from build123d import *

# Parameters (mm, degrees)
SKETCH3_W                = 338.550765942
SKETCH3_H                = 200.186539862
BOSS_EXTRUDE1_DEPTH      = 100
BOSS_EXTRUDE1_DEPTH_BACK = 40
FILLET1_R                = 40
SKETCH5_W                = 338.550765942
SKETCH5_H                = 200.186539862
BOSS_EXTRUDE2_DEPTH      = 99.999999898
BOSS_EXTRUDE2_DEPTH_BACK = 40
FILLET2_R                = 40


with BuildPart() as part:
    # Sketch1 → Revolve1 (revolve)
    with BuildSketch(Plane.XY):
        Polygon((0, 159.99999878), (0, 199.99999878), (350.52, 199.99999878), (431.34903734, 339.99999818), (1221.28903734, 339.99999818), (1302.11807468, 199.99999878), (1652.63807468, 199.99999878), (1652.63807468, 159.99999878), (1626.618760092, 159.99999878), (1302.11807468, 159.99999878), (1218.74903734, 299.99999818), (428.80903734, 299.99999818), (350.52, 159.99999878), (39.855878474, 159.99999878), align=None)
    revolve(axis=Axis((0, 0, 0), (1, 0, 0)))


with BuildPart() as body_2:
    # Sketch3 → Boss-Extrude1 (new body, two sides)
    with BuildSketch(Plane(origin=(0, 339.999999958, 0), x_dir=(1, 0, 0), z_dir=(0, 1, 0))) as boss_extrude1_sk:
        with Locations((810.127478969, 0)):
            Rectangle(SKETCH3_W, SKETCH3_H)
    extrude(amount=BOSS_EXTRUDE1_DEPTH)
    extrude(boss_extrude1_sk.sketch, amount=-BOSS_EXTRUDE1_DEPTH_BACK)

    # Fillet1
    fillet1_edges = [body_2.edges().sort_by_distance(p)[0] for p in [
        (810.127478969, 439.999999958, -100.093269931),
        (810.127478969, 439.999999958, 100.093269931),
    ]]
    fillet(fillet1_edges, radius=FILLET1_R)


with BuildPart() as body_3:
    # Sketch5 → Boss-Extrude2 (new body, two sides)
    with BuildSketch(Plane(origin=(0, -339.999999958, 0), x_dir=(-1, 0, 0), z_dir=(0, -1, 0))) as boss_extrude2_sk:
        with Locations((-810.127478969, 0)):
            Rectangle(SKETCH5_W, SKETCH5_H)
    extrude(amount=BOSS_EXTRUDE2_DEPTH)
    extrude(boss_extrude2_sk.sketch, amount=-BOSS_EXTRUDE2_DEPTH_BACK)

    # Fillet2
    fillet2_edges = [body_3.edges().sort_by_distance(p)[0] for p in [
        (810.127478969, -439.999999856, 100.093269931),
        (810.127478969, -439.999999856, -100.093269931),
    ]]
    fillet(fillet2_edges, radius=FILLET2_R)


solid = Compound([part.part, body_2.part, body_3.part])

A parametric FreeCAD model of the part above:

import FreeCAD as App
import Part
import Sketcher
from FreeCAD import Vector
Q = App.Units.Quantity


def edges_at(feature, points):
    """Names of the edges that pass closest to the given points."""
    edges = feature.Shape.Edges
    near = lambda p: min(range(len(edges)), key=lambda i: edges[i].distToShape(Part.Vertex(*p))[0])
    return sorted({f"Edge{near(p) + 1}" for p in points})

doc = App.newDocument("Part")
body = doc.addObject("PartDesign::Body", "Body")

# Sketch on XY plane
sketch1 = body.newObject("Sketcher::SketchObject", "Sketch")
sketch1.AttachmentSupport = (doc.getObject("XY_Plane"), [""])
sketch1.MapMode = "FlatFace"
sketch1.addGeometry([
    Part.LineSegment(Vector(0, 199.999999, 0), Vector(0, 159.999999, 0)),  # 0
    Part.LineSegment(Vector(0, 159.999999, 0), Vector(350.52, 159.999999, 0)),  # 1
    Part.LineSegment(Vector(350.52, 159.999999, 0), Vector(428.809037, 299.999998, 0)),  # 2
    Part.LineSegment(Vector(428.809037, 299.999998, 0), Vector(1218.749037, 299.999998, 0)),  # 3
    Part.LineSegment(Vector(1218.749037, 299.999998, 0), Vector(1302.118075, 159.999999, 0)),  # 4
    Part.LineSegment(Vector(1302.118075, 159.999999, 0), Vector(1652.638075, 159.999999, 0)),  # 5
    Part.LineSegment(Vector(1652.638075, 159.999999, 0), Vector(1652.638075, 199.999999, 0)),  # 6
    Part.LineSegment(Vector(1652.638075, 199.999999, 0), Vector(1302.118075, 199.999999, 0)),  # 7
    Part.LineSegment(Vector(1302.118075, 199.999999, 0), Vector(1221.289037, 339.999998, 0)),  # 8
    Part.LineSegment(Vector(1221.289037, 339.999998, 0), Vector(431.349037, 339.999998, 0)),  # 9
    Part.LineSegment(Vector(431.349037, 339.999998, 0), Vector(350.52, 199.999999, 0)),  # 10
    Part.LineSegment(Vector(350.52, 199.999999, 0), Vector(0, 199.999999, 0)),  # 11
], False)
sketch1.addConstraint([
    Sketcher.Constraint("Coincident", 0, 2, 1, 1),
    Sketcher.Constraint("Coincident", 1, 2, 2, 1),
    Sketcher.Constraint("Coincident", 2, 2, 3, 1),
    Sketcher.Constraint("Coincident", 3, 2, 4, 1),
    Sketcher.Constraint("Coincident", 4, 2, 5, 1),
    Sketcher.Constraint("Coincident", 5, 2, 6, 1),
    Sketcher.Constraint("Coincident", 6, 2, 7, 1),
    Sketcher.Constraint("Coincident", 7, 2, 8, 1),
    Sketcher.Constraint("Coincident", 8, 2, 9, 1),
    Sketcher.Constraint("Coincident", 9, 2, 10, 1),
    Sketcher.Constraint("Coincident", 10, 2, 11, 1),
    Sketcher.Constraint("Coincident", 11, 2, 0, 1),
    Sketcher.Constraint("Vertical", 0),
    Sketcher.Constraint("Horizontal", 1),
    Sketcher.Constraint("Horizontal", 3),
    Sketcher.Constraint("Horizontal", 5),
    Sketcher.Constraint("Vertical", 6),
    Sketcher.Constraint("Horizontal", 7),
    Sketcher.Constraint("Horizontal", 9),
    Sketcher.Constraint("Horizontal", 11),
    Sketcher.Constraint("PointOnObject", 0, 2, -2),
    Sketcher.Constraint("Horizontal", 1, 2, 4, 2),
    Sketcher.Constraint("Horizontal", 7, 2, 10, 2),
    Sketcher.Constraint("Vertical", 4, 2, 7, 2),
    Sketcher.Constraint("Vertical", 1, 2, 10, 2),
    Sketcher.Constraint("Equal", 1, 5),
    Sketcher.Constraint("Equal", 3, 9),
    Sketcher.Constraint("Equal", 8, 10),
    Sketcher.Constraint("DistanceY", 0, 2, 0, 1, Q("40 mm")),
    Sketcher.Constraint("Angle", 8, Q("120 deg")),
    Sketcher.Constraint("DistanceY", -1, 1, 0, 2, Q("159.999999 mm")),
    Sketcher.Constraint("DistanceY", -1, 1, 2, 2, Q("299.999998 mm")),
    Sketcher.Constraint("DistanceY", -1, 1, 8, 2, Q("339.999998 mm")),
    Sketcher.Constraint("DistanceX", 1, 1, 1, 2, Q("350.52 mm")),
    Sketcher.Constraint("DistanceX", 3, 1, 3, 2, Q("789.94 mm")),
    Sketcher.Constraint("DistanceX", 9, 2, 3, 2, Q("787.4 mm")),
])
revolution = body.newObject("PartDesign::Revolution", "Revolution")
revolution.Profile = sketch1
revolution.ReferenceAxis = (sketch1, ["H_Axis"])
revolution.Angle = 360
body2 = doc.addObject("PartDesign::Body", "Body001")

# Sketch on XZ plane
sketch2 = body2.newObject("Sketcher::SketchObject", "Sketch001")
sketch2.AttachmentSupport = (doc.getObject("XZ_Plane001"), [""])
sketch2.MapMode = "FlatFace"
sketch2.AttachmentOffset = App.Placement(Vector(0, 0, -340), App.Rotation())
sketch2.addGeometry([
    Part.LineSegment(Vector(640.852096, -100.09327, 0), Vector(640.852096, 100.09327, 0)),
    Part.LineSegment(Vector(640.852096, 100.09327, 0), Vector(979.402862, 100.09327, 0)),
    Part.LineSegment(Vector(979.402862, 100.09327, 0), Vector(979.402862, -100.09327, 0)),
    Part.LineSegment(Vector(979.402862, -100.09327, 0), Vector(640.852096, -100.09327, 0)),
], False)
sketch2.addConstraint([
    Sketcher.Constraint("Coincident", 0, 2, 1, 1),
    Sketcher.Constraint("Coincident", 1, 2, 2, 1),
    Sketcher.Constraint("Coincident", 2, 2, 3, 1),
    Sketcher.Constraint("Coincident", 3, 2, 0, 1),
    Sketcher.Constraint("Vertical", 0),
    Sketcher.Constraint("Horizontal", 1),
    Sketcher.Constraint("Vertical", 2),
    Sketcher.Constraint("Horizontal", 3),
    Sketcher.Constraint("DistanceY", 0, 1, 0, 2, Q("200.18654 mm")),
    Sketcher.Constraint("DistanceX", 1, 1, 1, 2, Q("338.550766 mm")),
    Sketcher.Constraint("DistanceY", -1, 1, 0, 2, Q("100.09327 mm")),
    Sketcher.Constraint("DistanceX", -1, 1, 1, 2, Q("979.402862 mm")),
])
pad1 = body2.newObject("PartDesign::Pad", "Pad")
pad1.Profile = sketch2
pad1.Type = "TwoLengths"
pad1.Length = 100
pad1.Length2 = 40
pad1.Reversed = True
doc.recompute()

fillet = body2.newObject("PartDesign::Fillet", "Fillet")
fillet.Base = (pad1, edges_at(pad1, [(810.127, 440, -100.093), (810.127, 440, 100.093)]))
fillet.Radius = 40
body3 = doc.addObject("PartDesign::Body", "Body002")

# Sketch on XZ plane
sketch3 = body3.newObject("Sketcher::SketchObject", "Sketch002")
sketch3.AttachmentSupport = (doc.getObject("XZ_Plane002"), [""])
sketch3.MapMode = "FlatFace"
sketch3.AttachmentOffset = App.Placement(Vector(0, 0, 340), App.Rotation())
sketch3.addGeometry([
    Part.LineSegment(Vector(979.402862, -100.09327, 0), Vector(979.402862, 100.09327, 0)),
    Part.LineSegment(Vector(979.402862, 100.09327, 0), Vector(640.852096, 100.09327, 0)),
    Part.LineSegment(Vector(640.852096, 100.09327, 0), Vector(640.852096, -100.09327, 0)),
    Part.LineSegment(Vector(640.852096, -100.09327, 0), Vector(979.402862, -100.09327, 0)),
], False)
sketch3.addConstraint([
    Sketcher.Constraint("Coincident", 0, 2, 1, 1),
    Sketcher.Constraint("Coincident", 1, 2, 2, 1),
    Sketcher.Constraint("Coincident", 2, 2, 3, 1),
    Sketcher.Constraint("Coincident", 3, 2, 0, 1),
    Sketcher.Constraint("Vertical", 0),
    Sketcher.Constraint("Horizontal", 1),
    Sketcher.Constraint("Vertical", 2),
    Sketcher.Constraint("Horizontal", 3),
    Sketcher.Constraint("DistanceY", 0, 1, 0, 2, Q("200.18654 mm")),
    Sketcher.Constraint("DistanceX", 1, 2, 1, 1, Q("338.550766 mm")),
    Sketcher.Constraint("DistanceX", -1, 1, 0, 2, Q("979.402862 mm")),
    Sketcher.Constraint("DistanceY", -1, 1, 0, 2, Q("100.09327 mm")),
])
pad2 = body3.newObject("PartDesign::Pad", "Pad001")
pad2.Profile = sketch3
pad2.Type = "TwoLengths"
pad2.Length = 100
pad2.Length2 = 40
doc.recompute()

fillet2 = body3.newObject("PartDesign::Fillet", "Fillet001")
fillet2.Base = (pad2, edges_at(pad2, [(810.127, -440, 100.093), (810.127, -440, -100.093)]))
fillet2.Radius = 40

doc.recompute()
